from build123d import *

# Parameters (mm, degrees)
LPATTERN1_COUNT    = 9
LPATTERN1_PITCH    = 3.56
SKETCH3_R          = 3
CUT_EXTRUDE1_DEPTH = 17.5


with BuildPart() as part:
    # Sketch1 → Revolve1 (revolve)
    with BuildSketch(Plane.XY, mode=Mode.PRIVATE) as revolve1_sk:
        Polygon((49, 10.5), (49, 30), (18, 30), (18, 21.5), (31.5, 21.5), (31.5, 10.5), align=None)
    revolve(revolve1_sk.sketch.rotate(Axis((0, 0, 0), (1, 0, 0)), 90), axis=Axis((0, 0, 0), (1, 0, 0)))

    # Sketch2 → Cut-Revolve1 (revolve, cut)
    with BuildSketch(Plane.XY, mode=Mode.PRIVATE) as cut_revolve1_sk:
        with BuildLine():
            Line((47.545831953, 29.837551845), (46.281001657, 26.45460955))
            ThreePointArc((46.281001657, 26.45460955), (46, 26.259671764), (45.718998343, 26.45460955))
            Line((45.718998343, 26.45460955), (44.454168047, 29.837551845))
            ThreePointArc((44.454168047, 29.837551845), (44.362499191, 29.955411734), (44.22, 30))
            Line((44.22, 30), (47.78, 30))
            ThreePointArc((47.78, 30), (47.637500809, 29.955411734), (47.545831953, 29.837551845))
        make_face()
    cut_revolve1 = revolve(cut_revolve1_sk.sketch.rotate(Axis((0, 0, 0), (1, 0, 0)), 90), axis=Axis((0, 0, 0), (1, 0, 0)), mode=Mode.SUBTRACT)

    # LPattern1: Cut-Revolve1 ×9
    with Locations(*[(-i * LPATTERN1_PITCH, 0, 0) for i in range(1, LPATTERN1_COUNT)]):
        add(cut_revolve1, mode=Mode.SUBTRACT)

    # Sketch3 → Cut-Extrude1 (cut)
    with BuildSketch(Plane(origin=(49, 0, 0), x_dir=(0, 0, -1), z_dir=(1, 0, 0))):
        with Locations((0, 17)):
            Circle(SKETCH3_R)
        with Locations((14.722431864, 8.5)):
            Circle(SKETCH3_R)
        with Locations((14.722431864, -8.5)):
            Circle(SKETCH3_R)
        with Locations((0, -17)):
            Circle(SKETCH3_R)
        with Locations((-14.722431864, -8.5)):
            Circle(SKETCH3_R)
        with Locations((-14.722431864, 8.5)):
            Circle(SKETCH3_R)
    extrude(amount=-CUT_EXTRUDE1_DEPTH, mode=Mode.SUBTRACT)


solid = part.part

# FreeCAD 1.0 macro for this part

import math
import FreeCAD as App
import Part
import Sketcher
from FreeCAD import Vector
Q = App.Units.Quantity

doc = App.newDocument("Part")
body = doc.addObject("PartDesign::Body", "Body")

# Sketch on XY plane
sketch1 = body.newObject("Sketcher::SketchObject", "Sketch")
sketch1.AttachmentSupport = (doc.getObject("XY_Plane"), [""])
sketch1.MapMode = "FlatFace"
sketch1.addGeometry([
    Part.LineSegment(Vector(49, 10, 0), Vector(49, 30, 0)),  # 0
    Part.LineSegment(Vector(49, 30, 0), Vector(18, 30, 0)),  # 1
    Part.LineSegment(Vector(18, 30, 0), Vector(18, 22, 0)),  # 2
    Part.LineSegment(Vector(18, 22, 0), Vector(32, 22, 0)),  # 3
    Part.LineSegment(Vector(32, 22, 0), Vector(32, 10, 0)),  # 4
    Part.LineSegment(Vector(32, 10, 0), Vector(49, 10, 0)),  # 5
], False)
sketch1.addConstraint([
    Sketcher.Constraint("Coincident", 0, 2, 1, 1),
    Sketcher.Constraint("Coincident", 1, 2, 2, 1),
    Sketcher.Constraint("Coincident", 2, 2, 3, 1),
    Sketcher.Constraint("Coincident", 3, 2, 4, 1),
    Sketcher.Constraint("Coincident", 4, 2, 5, 1),
    Sketcher.Constraint("Coincident", 5, 2, 0, 1),
    Sketcher.Constraint("Vertical", 0),
    Sketcher.Constraint("Horizontal", 1),
    Sketcher.Constraint("Vertical", 2),
    Sketcher.Constraint("Horizontal", 3),
    Sketcher.Constraint("Vertical", 4),
    Sketcher.Constraint("Horizontal", 5),
    Sketcher.Constraint("DistanceX", 1, 2, 1, 1, Q("31 mm")),
    Sketcher.Constraint("DistanceY", 4, 2, 4, 1, Q("11 mm")),
    Sketcher.Constraint("DistanceX", 3, 1, 3, 2, Q("13.5 mm")),
    Sketcher.Constraint("DistanceY", 0, 1, 0, 2, Q("19.5 mm")),
    Sketcher.Constraint("DistanceX", -1, 1, 0, 2, Q("49 mm")),
    Sketcher.Constraint("DistanceY", -1, 1, 0, 2, Q("30 mm")),
])
revolution = body.newObject("PartDesign::Revolution", "Revolution")
revolution.Profile = sketch1
revolution.ReferenceAxis = (sketch1, ["H_Axis"])
revolution.Angle = 360

# Sketch on XY plane
sketch2 = body.newObject("Sketcher::SketchObject", "Sketch001")
sketch2.AttachmentSupport = (doc.getObject("XY_Plane"), [""])
sketch2.MapMode = "FlatFace"
sketch2.addGeometry([
    Part.LineSegment(Vector(46.28, 26.45, 0), Vector(47.55, 29.84, 0)),  # 0
    Part.ArcOfCircle(Part.Circle(Vector(47.78, 29.75, 0), Vector(0, 0, 1), 0.25), math.radians(90), math.radians(160)),  # 1
    Part.LineSegment(Vector(47.78, 30, 0), Vector(44.22, 30, 0)),  # 2
    Part.ArcOfCircle(Part.Circle(Vector(44.22, 29.75, 0), Vector(0, 0, 1), 0.25), math.radians(20), math.radians(90)),  # 3
    Part.LineSegment(Vector(44.45, 29.84, 0), Vector(45.72, 26.45, 0)),  # 4
    Part.ArcOfCircle(Part.Circle(Vector(46, 26.56, 0), Vector(0, 0, 1), 0.3), math.radians(-160), math.radians(-20)),  # 5
], False)
sketch2.addConstraint([
    Sketcher.Constraint("Tangent", 0, 2, 1, 2),
    Sketcher.Constraint("Tangent", 1, 1, 2, 1),
    Sketcher.Constraint("Tangent", 2, 2, 3, 2),
    Sketcher.Constraint("Tangent", 3, 1, 4, 1),
    Sketcher.Constraint("Tangent", 4, 2, 5, 1),
    Sketcher.Constraint("Tangent", 5, 2, 0, 1),
    Sketcher.Constraint("Horizontal", 2),
    Sketcher.Constraint("Equal", 1, 3),
    Sketcher.Constraint("Horizontal", 0, 2, 3, 1),
    Sketcher.Constraint("Radius", 5, Q("0.3 mm")),
    Sketcher.Constraint("Radius", 1, Q("0.25 mm")),
    Sketcher.Constraint("DistanceX", -1, 1, 5, 3, Q("46 mm")),
    Sketcher.Constraint("DistanceY", -1, 1, 1, 1, Q("30 mm")),
    Sketcher.Constraint("Angle", 0, Q("69.5 deg")),
    Sketcher.Constraint("DistanceX", 2, 2, 2, 1, Q("3.56 mm")),
])
groove = body.newObject("PartDesign::Groove", "Groove")
groove.Profile = sketch2
groove.ReferenceAxis = (sketch2, ["H_Axis"])
groove.Angle = 360
doc.recompute()

linearpattern = body.newObject("PartDesign::LinearPattern", "LinearPattern")
linearpattern.Originals = [groove]
linearpattern.Direction = (doc.getObject("X_Axis"), [""])
linearpattern.Mode = "offset"
linearpattern.Offset = 3.56
linearpattern.Occurrences = 9
linearpattern.Reversed = True
body.Tip = linearpattern

# Sketch on YZ plane
sketch3 = body.newObject("Sketcher::SketchObject", "Sketch002")
sketch3.AttachmentSupport = (doc.getObject("YZ_Plane"), [""])
sketch3.MapMode = "FlatFace"
sketch3.AttachmentOffset = App.Placement(Vector(0, 0, 49), App.Rotation())
sketch3.addGeometry([
    Part.Circle(Vector(17, 0, 0), Vector(0, 0, 1), 3),  # 0
    Part.Circle(Vector(8.5, -14.7, 0), Vector(0, 0, 1), 3),  # 1
    Part.Circle(Vector(-8.5, -14.7, 0), Vector(0, 0, 1), 3),  # 2
    Part.Circle(Vector(-17, 0, 0), Vector(0, 0, 1), 3),  # 3
    Part.Circle(Vector(-8.5, 14.7, 0), Vector(0, 0, 1), 3),  # 4
    Part.Circle(Vector(8.5, 14.7, 0), Vector(0, 0, 1), 3),  # 5
], False)
sketch3.addConstraint([
    Sketcher.Constraint("Equal", 0, 1),
    Sketcher.Constraint("Equal", 1, 2),
    Sketcher.Constraint("Equal", 2, 3),
    Sketcher.Constraint("Equal", 3, 4),
    Sketcher.Constraint("Equal", 4, 5),
    Sketcher.Constraint("Symmetric", 0, 3, 3, 3, -1, 1),
    Sketcher.Constraint("Symmetric", 1, 3, 4, 3, -1, 1),
    Sketcher.Constraint("Symmetric", 2, 3, 5, 3, -1, 1),
    Sketcher.Constraint("Symmetric", 1, 3, 2, 3, -2),
    Sketcher.Constraint("PointOnObject", 0, 3, -1),
    Sketcher.Constraint("Diameter", 0, Q("6 mm")),
    Sketcher.Constraint("DistanceX", -1, 1, 0, 3, Q("17 mm")),
    Sketcher.Constraint("DistanceX", 2, 3, 1, 3, Q("17 mm")),
    Sketcher.Constraint("DistanceY", 1, 3, -1, 1, Q("14.722432 mm")),
])
pocket1 = body.newObject("PartDesign::Pocket", "Pocket")
pocket1.Profile = sketch3
pocket1.Length = 17.5

doc.recompute()
